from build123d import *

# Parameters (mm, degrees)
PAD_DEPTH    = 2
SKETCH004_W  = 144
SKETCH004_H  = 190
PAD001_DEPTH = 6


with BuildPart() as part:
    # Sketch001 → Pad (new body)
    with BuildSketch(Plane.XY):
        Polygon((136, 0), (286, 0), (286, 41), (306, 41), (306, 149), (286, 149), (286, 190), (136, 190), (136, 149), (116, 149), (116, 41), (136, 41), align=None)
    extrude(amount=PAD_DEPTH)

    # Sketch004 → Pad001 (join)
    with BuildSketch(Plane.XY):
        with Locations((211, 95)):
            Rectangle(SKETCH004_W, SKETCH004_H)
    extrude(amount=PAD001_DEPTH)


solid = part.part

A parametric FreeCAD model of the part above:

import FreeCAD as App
import Part
import Sketcher

V = App.Vector


def add_polygon(sketch, points):
    """Adds a closed chain of lines whose ends are joined by coincident constraints."""
    first, n = sketch.GeometryCount, len(points)
    for a, b in zip(points, points[1:] + points[:1]):
        sketch.addGeometry(Part.LineSegment(App.Vector(*a, 0), App.Vector(*b, 0)), False)
    for i in range(n):
        sketch.addConstraint(Sketcher.Constraint("Coincident", first + i, 2, first + (i + 1) % n, 1))

doc = App.newDocument("Part")
body = doc.addObject("PartDesign::Body", "Body")

# Sketch on XY plane
sketch1 = body.newObject("Sketcher::SketchObject", "Sketch")
sketch1.AttachmentSupport = (doc.getObject("XY_Plane"), [""])
sketch1.MapMode = "FlatFace"
add_polygon(sketch1, [(136, 0), (286, 0), (286, 41), (306, 41), (306, 149), (286, 149), (286, 190), (136, 190), (136, 149), (116, 149), (116, 41), (136, 41)])  # lines 0-11
sketch1.addConstraint([
    Sketcher.Constraint("Horizontal", 0),
    Sketcher.Constraint("Vertical", 1),
    Sketcher.Constraint("Horizontal", 2),
    Sketcher.Constraint("Vertical", 3),
    Sketcher.Constraint("Horizontal", 4),
    Sketcher.Constraint("Vertical", 5),
    Sketcher.Constraint("Horizontal", 6),
    Sketcher.Constraint("Vertical", 7),
    Sketcher.Constraint("Horizontal", 8),
    Sketcher.Constraint("Vertical", 9),
    Sketcher.Constraint("Horizontal", 10),
    Sketcher.Constraint("Vertical", 11),
    Sketcher.Constraint("PointOnObject", 0, 2, -1),
    Sketcher.Constraint("Horizontal", 4, 2, 7, 2),
    Sketcher.Constraint("Horizontal", 2, 2, 9, 2),
    Sketcher.Constraint("Vertical", 1, 2, 4, 2),
    Sketcher.Constraint("Vertical", 7, 2, 10, 2),
    Sketcher.Constraint("Equal", 4, 8),
    Sketcher.Constraint("Equal", 1, 5),
    Sketcher.Constraint("DistanceX", 0, 1, 0, 2, 150.0),
    Sketcher.Constraint("DistanceX", 2, 1, 2, 2, 20.0),
    Sketcher.Constraint("DistanceY", 1, 1, 1, 2, 41.0),
    Sketcher.Constraint("DistanceY", 3, 1, 3, 2, 108.0),
    Sketcher.Constraint("DistanceX", -1, 1, 0, 2, 286.0),
])
pad1 = body.newObject("PartDesign::Pad", "Pad")
pad1.Profile = sketch1
pad1.Length = 2

# Sketch on XY plane
sketch2 = body.newObject("Sketcher::SketchObject", "Sketch001")
sketch2.AttachmentSupport = (doc.getObject("XY_Plane"), [""])
sketch2.MapMode = "FlatFace"
add_polygon(sketch2, [(139, 190), (139, 0), (283, 0), (283, 190)])  # lines 0-3
sketch2.addConstraint([
    Sketcher.Constraint("Vertical", 0),
    Sketcher.Constraint("Horizontal", 1),
    Sketcher.Constraint("Vertical", 2),
    Sketcher.Constraint("Horizontal", 3),
    Sketcher.Constraint("PointOnObject", 0, 2, -1),
    Sketcher.Constraint("DistanceX", 1, 1, 1, 2, 144.0),
    Sketcher.Constraint("DistanceY", 0, 2, 0, 1, 190.0),
    Sketcher.Constraint("DistanceX", -1, 1, 0, 2, 139.0),
])
pad2 = body.newObject("PartDesign::Pad", "Pad001")
pad2.Profile = sketch2
pad2.Length = 6

doc.recompute()
